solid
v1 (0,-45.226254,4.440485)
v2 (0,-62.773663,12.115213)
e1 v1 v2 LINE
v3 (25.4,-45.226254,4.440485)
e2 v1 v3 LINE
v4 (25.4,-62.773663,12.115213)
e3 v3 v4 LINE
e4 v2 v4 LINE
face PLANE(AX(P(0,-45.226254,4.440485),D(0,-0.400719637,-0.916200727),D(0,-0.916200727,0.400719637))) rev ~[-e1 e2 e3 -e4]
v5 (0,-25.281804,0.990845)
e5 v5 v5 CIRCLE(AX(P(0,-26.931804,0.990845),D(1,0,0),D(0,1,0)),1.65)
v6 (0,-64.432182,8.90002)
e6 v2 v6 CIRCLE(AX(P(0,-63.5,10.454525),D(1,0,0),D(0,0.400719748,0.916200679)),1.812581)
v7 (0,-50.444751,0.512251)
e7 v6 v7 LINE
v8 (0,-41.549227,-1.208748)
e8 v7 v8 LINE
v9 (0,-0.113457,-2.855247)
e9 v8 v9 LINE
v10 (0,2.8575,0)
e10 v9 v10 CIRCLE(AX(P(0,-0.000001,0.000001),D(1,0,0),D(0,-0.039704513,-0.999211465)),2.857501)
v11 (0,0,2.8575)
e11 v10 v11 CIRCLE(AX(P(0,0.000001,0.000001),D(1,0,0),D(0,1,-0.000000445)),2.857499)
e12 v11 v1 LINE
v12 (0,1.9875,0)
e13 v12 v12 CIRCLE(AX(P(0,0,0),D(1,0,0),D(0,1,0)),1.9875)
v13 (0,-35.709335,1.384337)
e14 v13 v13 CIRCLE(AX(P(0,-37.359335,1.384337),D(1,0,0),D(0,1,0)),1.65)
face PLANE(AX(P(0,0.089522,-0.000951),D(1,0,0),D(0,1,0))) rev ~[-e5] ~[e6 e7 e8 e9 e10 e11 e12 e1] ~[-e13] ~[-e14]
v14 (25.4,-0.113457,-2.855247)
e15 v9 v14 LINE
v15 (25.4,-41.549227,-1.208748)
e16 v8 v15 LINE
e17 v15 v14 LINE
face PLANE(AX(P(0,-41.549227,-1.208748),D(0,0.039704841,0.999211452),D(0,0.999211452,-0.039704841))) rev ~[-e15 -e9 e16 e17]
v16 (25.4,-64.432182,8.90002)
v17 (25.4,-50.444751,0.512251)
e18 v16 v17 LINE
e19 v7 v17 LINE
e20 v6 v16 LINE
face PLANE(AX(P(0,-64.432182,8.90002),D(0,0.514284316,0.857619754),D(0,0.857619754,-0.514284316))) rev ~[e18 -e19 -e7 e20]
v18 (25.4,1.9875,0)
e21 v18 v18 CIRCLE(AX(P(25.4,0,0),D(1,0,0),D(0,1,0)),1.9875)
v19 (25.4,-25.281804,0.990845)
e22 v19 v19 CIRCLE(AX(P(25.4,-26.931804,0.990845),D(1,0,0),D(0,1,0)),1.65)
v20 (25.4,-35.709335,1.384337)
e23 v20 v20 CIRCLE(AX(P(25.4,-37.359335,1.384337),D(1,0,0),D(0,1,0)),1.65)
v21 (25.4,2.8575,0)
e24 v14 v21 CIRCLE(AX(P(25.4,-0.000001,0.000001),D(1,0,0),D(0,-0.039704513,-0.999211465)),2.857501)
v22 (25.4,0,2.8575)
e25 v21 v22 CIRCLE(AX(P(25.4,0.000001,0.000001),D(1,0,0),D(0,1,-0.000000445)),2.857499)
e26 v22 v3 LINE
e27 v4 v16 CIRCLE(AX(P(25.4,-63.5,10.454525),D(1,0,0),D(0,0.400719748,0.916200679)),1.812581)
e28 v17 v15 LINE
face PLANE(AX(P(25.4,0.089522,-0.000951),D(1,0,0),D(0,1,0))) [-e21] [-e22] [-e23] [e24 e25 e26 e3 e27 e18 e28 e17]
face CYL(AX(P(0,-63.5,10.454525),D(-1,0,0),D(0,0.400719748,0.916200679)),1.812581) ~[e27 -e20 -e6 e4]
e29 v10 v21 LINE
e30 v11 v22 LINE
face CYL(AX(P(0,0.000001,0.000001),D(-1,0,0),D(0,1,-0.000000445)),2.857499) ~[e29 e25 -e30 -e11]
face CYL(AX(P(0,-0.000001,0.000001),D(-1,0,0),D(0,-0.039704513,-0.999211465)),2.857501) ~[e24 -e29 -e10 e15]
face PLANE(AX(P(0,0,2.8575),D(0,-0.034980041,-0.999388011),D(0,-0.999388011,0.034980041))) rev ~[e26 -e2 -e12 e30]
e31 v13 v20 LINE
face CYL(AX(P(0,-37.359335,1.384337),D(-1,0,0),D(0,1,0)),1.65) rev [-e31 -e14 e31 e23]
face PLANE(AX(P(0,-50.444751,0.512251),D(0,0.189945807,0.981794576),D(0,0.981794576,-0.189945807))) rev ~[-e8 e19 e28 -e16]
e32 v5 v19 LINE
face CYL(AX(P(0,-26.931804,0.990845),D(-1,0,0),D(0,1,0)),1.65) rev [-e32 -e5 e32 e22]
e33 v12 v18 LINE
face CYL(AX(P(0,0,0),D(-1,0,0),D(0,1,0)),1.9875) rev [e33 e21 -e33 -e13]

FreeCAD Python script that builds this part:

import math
import FreeCAD as App
import Part
import Sketcher
from FreeCAD import Vector
Q = App.Units.Quantity

doc = App.newDocument("Part")
body = doc.addObject("PartDesign::Body", "Body")

sketch1 = body.newObject("Sketcher::SketchObject", "Sketch")
sketch1.AttachmentSupport = (doc.getObject("YZ_Plane"), [""])
sketch1.MapMode = "FlatFace"
sketch1.addGeometry([
    Part.ArcOfCircle(Part.Circle(Vector(-0.000001, 0.000001, 0), Vector(0, 0, 1), 2.857501), math.radians(-92.275499), math.radians(-0.000021)),
    Part.ArcOfCircle(Part.Circle(Vector(0.000001, 0.000001, 0), Vector(0, 0, 1), 2.857499), math.radians(-0.000026), math.radians(90.000026)),
    Part.LineSegment(Vector(0, 2.8575, 0), Vector(-45.226254, 4.440485, 0)),
    Part.LineSegment(Vector(-45.226254, 4.440485, 0), Vector(-62.773663, 12.115213, 0)),
    Part.ArcOfCircle(Part.Circle(Vector(-63.5, 10.454525, 0), Vector(0, 0, 1), 1.812581), math.radians(66.376819), math.radians(239.050367)),
    Part.LineSegment(Vector(-64.432182, 8.90002, 0), Vector(-50.444751, 0.512251, 0)),
    Part.LineSegment(Vector(-50.444751, 0.512251, 0), Vector(-41.549227, -1.208748, 0)),
    Part.LineSegment(Vector(-41.549227, -1.208748, 0), Vector(-0.113457, -2.855247, 0)),
    Part.Circle(Vector(0, 0, 0), Vector(0, 0, 1), 1.9875),
    Part.Circle(Vector(-37.359335, 1.384337, 0), Vector(0, 0, 1), 1.65),
    Part.Circle(Vector(-26.931804, 0.990845, 0), Vector(0, 0, 1), 1.65),
], False)
sketch1.addConstraint([
    Sketcher.Constraint("Tangent", 0, 2, 1, 1),
    Sketcher.Constraint("Coincident", 1, 2, 2, 1),
    Sketcher.Constraint("Coincident", 2, 2, 3, 1),
    Sketcher.Constraint("Tangent", 3, 2, 4, 1),
    Sketcher.Constraint("Tangent", 4, 2, 5, 1),
    Sketcher.Constraint("Coincident", 5, 2, 6, 1),
    Sketcher.Constraint("Coincident", 6, 2, 7, 1),
    Sketcher.Constraint("Tangent", 7, 2, 0, 1),
    Sketcher.Constraint("Coincident", 0, 3, -1, 1),
    Sketcher.Constraint("Coincident", 8, 3, -1, 1),
    Sketcher.Constraint("Equal", 9, 10),
    Sketcher.Constraint("PointOnObject", 0, 2, -1),
    Sketcher.Constraint("PointOnObject", 1, 2, -2),
    Sketcher.Constraint("DistanceX", 4, 3, -1, 1, Q("2.5 in")),
    Sketcher.Constraint("Radius", 0, Q("0.1125001 in")),
    Sketcher.Constraint("Radius", 1, Q("0.1124999 in")),
    Sketcher.Constraint("Diameter", 8, Q("3.975 mm")),
    Sketcher.Constraint("Diameter", 9, Q("3.3 mm")),
    Sketcher.Constraint("Radius", 4, Q("1.812581 mm")),
    Sketcher.Constraint("DistanceX", 4, 2, -1, 1, Q("2.5367001 in")),
    Sketcher.Constraint("DistanceY", 6, 2, 5, 2, Q("1.720999 mm")),
    Sketcher.Constraint("Distance", 2, Q("45.253949 mm")),
    Sketcher.Constraint("Distance", 7, Q("41.46847 mm")),
    Sketcher.Constraint("DistanceY", -1, 1, 4, 2, Q("8.90002 mm")),
    Sketcher.Constraint("DistanceX", 5, 2, -1, 1, Q("50.444751 mm")),
    Sketcher.Constraint("DistanceY", 9, 3, 4, 3, Q("9.070188 mm")),
    Sketcher.Constraint("DistanceX", 9, 3, 10, 3, Q("10.427531 mm")),
    Sketcher.Constraint("DistanceY", 10, 3, 9, 3, Q("0.393492 mm")),
    Sketcher.Constraint("DistanceX", 2, 2, 9, 3, Q("7.866919 mm")),
    Sketcher.Constraint("DistanceY", 10, 3, 2, 2, Q("3.44964 mm")),
])
pad1 = body.newObject("PartDesign::Pad", "Pad")
pad1.Profile = sketch1
pad1.Length = Q("1 in")

doc.recompute()
